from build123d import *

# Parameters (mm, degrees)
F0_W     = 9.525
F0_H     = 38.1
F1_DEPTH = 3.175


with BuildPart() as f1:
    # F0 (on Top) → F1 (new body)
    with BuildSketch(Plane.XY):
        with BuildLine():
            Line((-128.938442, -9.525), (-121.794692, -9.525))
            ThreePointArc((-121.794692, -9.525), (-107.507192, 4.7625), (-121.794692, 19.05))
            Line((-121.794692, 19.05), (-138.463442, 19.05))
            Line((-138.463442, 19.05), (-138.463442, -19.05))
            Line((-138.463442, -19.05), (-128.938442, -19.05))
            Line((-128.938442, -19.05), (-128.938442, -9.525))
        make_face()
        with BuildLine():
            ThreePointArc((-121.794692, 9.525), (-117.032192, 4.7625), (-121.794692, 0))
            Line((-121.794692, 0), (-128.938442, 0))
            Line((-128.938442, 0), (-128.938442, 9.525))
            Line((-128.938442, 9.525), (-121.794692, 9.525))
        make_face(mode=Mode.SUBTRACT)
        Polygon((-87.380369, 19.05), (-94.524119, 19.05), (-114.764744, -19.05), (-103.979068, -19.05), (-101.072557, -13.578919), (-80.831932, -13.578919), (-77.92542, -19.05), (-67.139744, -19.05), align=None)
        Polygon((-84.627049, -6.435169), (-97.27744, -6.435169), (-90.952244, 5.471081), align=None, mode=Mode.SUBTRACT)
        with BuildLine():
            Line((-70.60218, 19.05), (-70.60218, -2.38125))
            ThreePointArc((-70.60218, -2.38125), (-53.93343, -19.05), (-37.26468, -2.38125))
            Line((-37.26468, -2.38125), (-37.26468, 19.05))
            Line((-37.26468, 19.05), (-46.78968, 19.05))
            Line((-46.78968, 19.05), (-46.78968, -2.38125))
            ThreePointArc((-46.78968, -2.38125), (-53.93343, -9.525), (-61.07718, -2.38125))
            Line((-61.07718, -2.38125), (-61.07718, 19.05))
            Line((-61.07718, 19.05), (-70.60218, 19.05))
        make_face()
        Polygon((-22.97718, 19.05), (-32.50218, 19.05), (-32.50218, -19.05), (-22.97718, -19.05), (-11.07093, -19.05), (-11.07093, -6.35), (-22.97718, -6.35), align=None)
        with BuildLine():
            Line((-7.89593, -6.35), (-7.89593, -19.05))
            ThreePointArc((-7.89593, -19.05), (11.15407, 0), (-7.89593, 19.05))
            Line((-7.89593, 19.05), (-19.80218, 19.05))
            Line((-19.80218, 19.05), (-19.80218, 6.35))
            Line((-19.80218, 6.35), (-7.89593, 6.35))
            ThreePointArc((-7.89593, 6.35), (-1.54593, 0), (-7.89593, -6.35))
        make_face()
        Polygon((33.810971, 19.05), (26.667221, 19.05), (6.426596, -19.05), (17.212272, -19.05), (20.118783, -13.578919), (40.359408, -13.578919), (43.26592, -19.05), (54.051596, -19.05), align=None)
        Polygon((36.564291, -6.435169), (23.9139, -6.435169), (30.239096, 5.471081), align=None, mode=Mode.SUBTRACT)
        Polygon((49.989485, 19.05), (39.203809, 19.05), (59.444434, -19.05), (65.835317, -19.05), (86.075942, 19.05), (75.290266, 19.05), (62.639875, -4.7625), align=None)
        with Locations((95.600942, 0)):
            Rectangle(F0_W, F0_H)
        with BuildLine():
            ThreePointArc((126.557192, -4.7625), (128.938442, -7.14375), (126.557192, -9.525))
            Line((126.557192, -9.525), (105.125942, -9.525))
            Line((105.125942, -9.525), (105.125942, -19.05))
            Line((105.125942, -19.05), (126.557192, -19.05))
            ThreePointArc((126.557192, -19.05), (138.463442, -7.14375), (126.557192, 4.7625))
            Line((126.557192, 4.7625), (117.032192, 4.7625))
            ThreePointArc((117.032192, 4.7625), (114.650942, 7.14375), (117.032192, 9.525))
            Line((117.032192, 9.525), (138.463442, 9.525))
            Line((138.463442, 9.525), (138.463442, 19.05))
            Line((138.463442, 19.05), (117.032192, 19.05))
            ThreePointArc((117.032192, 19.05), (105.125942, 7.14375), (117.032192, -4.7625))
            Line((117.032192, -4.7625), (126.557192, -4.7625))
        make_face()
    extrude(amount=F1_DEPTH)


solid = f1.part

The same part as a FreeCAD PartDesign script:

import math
import FreeCAD as App
import Part
import Sketcher

V = App.Vector
Q = App.Units.Quantity

doc = App.newDocument("Part")
body = doc.addObject("PartDesign::Body", "Body")
body.AllowCompound = True

sketch1 = body.newObject("Sketcher::SketchObject", "Sketch")
sketch1.AttachmentSupport = (doc.getObject("XY_Plane"), [""])
sketch1.MapMode = "FlatFace"
sketch1.addGeometry([
    Part.LineSegment(V(-128.9, -9.5, 0), V(-121.8, -9.5, 0)),
    Part.ArcOfCircle(Part.Circle(V(-121.8, 4.8, 0), V(0, 0, 1), 14.3), math.radians(-90), math.radians(90)),
    Part.LineSegment(V(-121.8, 19.1, 0), V(-138.5, 19.1, 0)),
    Part.LineSegment(V(-138.5, 19.1, 0), V(-138.5, -19.1, 0)),
    Part.LineSegment(V(-138.5, -19.1, 0), V(-128.9, -19.1, 0)),
    Part.LineSegment(V(-128.9, -19.1, 0), V(-128.9, -9.5, 0)),
    Part.LineSegment(V(-128.9, 9.5, 0), V(-121.8, 9.5, 0)),
    Part.ArcOfCircle(Part.Circle(V(-121.8, 4.8, 0), V(0, 0, 1), 4.8), math.radians(-90), math.radians(90)),
    Part.LineSegment(V(-121.8, 0, 0), V(-128.9, 0, 0)),
    Part.LineSegment(V(-128.9, 0, 0), V(-128.9, 9.5, 0)),
    Part.LineSegment(V(-87.4, 19.1, 0), V(-94.5, 19.1, 0)),
    Part.LineSegment(V(-94.5, 19.1, 0), V(-114.8, -19.1, 0)),
    Part.LineSegment(V(-114.8, -19.1, 0), V(-104, -19.1, 0)),
    Part.LineSegment(V(-104, -19.1, 0), V(-101.1, -13.6, 0)),
    Part.LineSegment(V(-101.1, -13.6, 0), V(-80.8, -13.6, 0)),
    Part.LineSegment(V(-80.8, -13.6, 0), V(-77.9, -19.1, 0)),
    Part.LineSegment(V(-77.9, -19.1, 0), V(-67.1, -19.1, 0)),
    Part.LineSegment(V(-67.1, -19.1, 0), V(-87.4, 19.1, 0)),
    Part.LineSegment(V(-91, 5.5, 0), V(-84.6, -6.4, 0)),
    Part.LineSegment(V(-84.6, -6.4, 0), V(-97.3, -6.4, 0)),
    Part.LineSegment(V(-97.3, -6.4, 0), V(-91, 5.5, 0)),
    Part.LineSegment(V(-70.6, 19.1, 0), V(-70.6, -2.4, 0)),
    Part.ArcOfCircle(Part.Circle(V(-53.9, -2.4, 0), V(0, 0, 1), 16.7), math.radians(180), math.radians(360)),
    Part.LineSegment(V(-37.3, -2.4, 0), V(-37.3, 19.1, 0)),
    Part.LineSegment(V(-37.3, 19.1, 0), V(-46.8, 19.1, 0)),
    Part.LineSegment(V(-46.8, 19.1, 0), V(-46.8, -2.4, 0)),
    Part.ArcOfCircle(Part.Circle(V(-53.9, -2.4, 0), V(0, 0, 1), 7.1), math.radians(180), math.radians(360)),
    Part.LineSegment(V(-61.1, -2.4, 0), V(-61.1, 19.1, 0)),
    Part.LineSegment(V(-61.1, 19.1, 0), V(-70.6, 19.1, 0)),
    Part.LineSegment(V(-23, 19.1, 0), V(-32.5, 19.1, 0)),
    Part.LineSegment(V(-32.5, 19.1, 0), V(-32.5, -19.1, 0)),
    Part.LineSegment(V(-32.5, -19.1, 0), V(-11.1, -19.1, 0)),
    Part.LineSegment(V(-11.1, -19.1, 0), V(-11.1, -6.3, 0)),
    Part.LineSegment(V(-11.1, -6.3, 0), V(-23, -6.3, 0)),
    Part.LineSegment(V(-23, -6.3, 0), V(-23, 19.1, 0)),
    Part.LineSegment(V(-7.9, -6.3, 0), V(-7.9, -19.1, 0)),
    Part.ArcOfCircle(Part.Circle(V(-7.9, 0, 0), V(0, 0, 1), 19.1), math.radians(-90), math.radians(90)),
    Part.LineSegment(V(-7.9, 19.1, 0), V(-19.8, 19.1, 0)),
    Part.LineSegment(V(-19.8, 19.1, 0), V(-19.8, 6.3, 0)),
    Part.LineSegment(V(-19.8, 6.3, 0), V(-7.9, 6.3, 0)),
    Part.ArcOfCircle(Part.Circle(V(-7.9, 0, 0), V(0, 0, 1), 6.3), math.radians(-90), math.radians(90)),
    Part.LineSegment(V(33.8, 19.1, 0), V(26.7, 19.1, 0)),
    Part.LineSegment(V(26.7, 19.1, 0), V(6.4, -19.1, 0)),
    Part.LineSegment(V(6.4, -19.1, 0), V(17.2, -19.1, 0)),
    Part.LineSegment(V(17.2, -19.1, 0), V(20.1, -13.6, 0)),
    Part.LineSegment(V(20.1, -13.6, 0), V(40.4, -13.6, 0)),
    Part.LineSegment(V(40.4, -13.6, 0), V(43.3, -19.1, 0)),
    Part.LineSegment(V(43.3, -19.1, 0), V(54.1, -19.1, 0)),
    Part.LineSegment(V(54.1, -19.1, 0), V(33.8, 19.1, 0)),
    Part.LineSegment(V(30.2, 5.5, 0), V(36.6, -6.4, 0)),
    Part.LineSegment(V(36.6, -6.4, 0), V(23.9, -6.4, 0)),
    Part.LineSegment(V(23.9, -6.4, 0), V(30.2, 5.5, 0)),
    Part.LineSegment(V(50, 19.1, 0), V(39.2, 19.1, 0)),
    Part.LineSegment(V(39.2, 19.1, 0), V(59.4, -19.1, 0)),
    Part.LineSegment(V(59.4, -19.1, 0), V(65.8, -19.1, 0)),
    Part.LineSegment(V(65.8, -19.1, 0), V(86.1, 19.1, 0)),
    Part.LineSegment(V(86.1, 19.1, 0), V(75.3, 19.1, 0)),
    Part.LineSegment(V(75.3, 19.1, 0), V(62.6, -4.8, 0)),
    Part.LineSegment(V(62.6, -4.8, 0), V(50, 19.1, 0)),
    Part.LineSegment(V(90.8, 19.1, 0), V(90.8, -19.1, 0)),
    Part.LineSegment(V(90.8, -19.1, 0), V(100.4, -19.1, 0)),
    Part.LineSegment(V(100.4, -19.1, 0), V(100.4, 19.1, 0)),
    Part.LineSegment(V(100.4, 19.1, 0), V(90.8, 19.1, 0)),
    Part.ArcOfCircle(Part.Circle(V(126.6, -7.1, 0), V(0, 0, 1), 2.4), math.radians(-90), math.radians(90)),
    Part.LineSegment(V(126.6, -9.5, 0), V(105.1, -9.5, 0)),
    Part.LineSegment(V(105.1, -9.5, 0), V(105.1, -19.1, 0)),
    Part.LineSegment(V(105.1, -19.1, 0), V(126.6, -19.1, 0)),
    Part.ArcOfCircle(Part.Circle(V(126.6, -7.1, 0), V(0, 0, 1), 11.9), math.radians(-90), math.radians(90)),
    Part.LineSegment(V(126.6, 4.8, 0), V(117, 4.8, 0)),
    Part.ArcOfCircle(Part.Circle(V(117, 7.1, 0), V(0, 0, 1), 2.4), math.radians(90), math.radians(270)),
    Part.LineSegment(V(117, 9.5, 0), V(138.5, 9.5, 0)),
    Part.LineSegment(V(138.5, 9.5, 0), V(138.5, 19.1, 0)),
    Part.LineSegment(V(138.5, 19.1, 0), V(117, 19.1, 0)),
    Part.ArcOfCircle(Part.Circle(V(117, 7.1, 0), V(0, 0, 1), 11.9), math.radians(90), math.radians(270)),
    Part.LineSegment(V(117, -4.8, 0), V(126.6, -4.8, 0)),
], False)
sketch1.addConstraint([
    Sketcher.Constraint("Tangent", 0, 2, 1, 1),
    Sketcher.Constraint("Tangent", 1, 2, 2, 1),
    Sketcher.Constraint("Coincident", 2, 2, 3, 1),
    Sketcher.Constraint("Coincident", 3, 2, 4, 1),
    Sketcher.Constraint("Coincident", 4, 2, 5, 1),
    Sketcher.Constraint("Coincident", 5, 2, 0, 1),
    Sketcher.Constraint("Tangent", 6, 2, 7, 2),
    Sketcher.Constraint("Tangent", 7, 1, 8, 1),
    Sketcher.Constraint("Coincident", 8, 2, 9, 1),
    Sketcher.Constraint("Coincident", 9, 2, 6, 1),
    Sketcher.Constraint("Coincident", 10, 2, 11, 1),
    Sketcher.Constraint("Coincident", 11, 2, 12, 1),
    Sketcher.Constraint("Coincident", 12, 2, 13, 1),
    Sketcher.Constraint("Coincident", 13, 2, 14, 1),
    Sketcher.Constraint("Coincident", 14, 2, 15, 1),
    Sketcher.Constraint("Coincident", 15, 2, 16, 1),
    Sketcher.Constraint("Coincident", 16, 2, 17, 1),
    Sketcher.Constraint("Coincident", 17, 2, 10, 1),
    Sketcher.Constraint("Coincident", 18, 2, 19, 1),
    Sketcher.Constraint("Coincident", 19, 2, 20, 1),
    Sketcher.Constraint("Coincident", 20, 2, 18, 1),
    Sketcher.Constraint("Tangent", 21, 2, 22, 1),
    Sketcher.Constraint("Tangent", 22, 2, 23, 1),
    Sketcher.Constraint("Coincident", 23, 2, 24, 1),
    Sketcher.Constraint("Coincident", 24, 2, 25, 1),
    Sketcher.Constraint("Tangent", 25, 2, 26, 2),
    Sketcher.Constraint("Tangent", 26, 1, 27, 1),
    Sketcher.Constraint("Coincident", 27, 2, 28, 1),
    Sketcher.Constraint("Coincident", 28, 2, 21, 1),
    Sketcher.Constraint("Coincident", 29, 2, 30, 1),
    Sketcher.Constraint("Coincident", 30, 2, 31, 1),
    Sketcher.Constraint("Coincident", 31, 2, 32, 1),
    Sketcher.Constraint("Coincident", 32, 2, 33, 1),
    Sketcher.Constraint("Coincident", 33, 2, 34, 1),
    Sketcher.Constraint("Coincident", 34, 2, 29, 1),
    Sketcher.Constraint("Coincident", 35, 2, 36, 1),
    Sketcher.Constraint("Tangent", 36, 2, 37, 1),
    Sketcher.Constraint("Coincident", 37, 2, 38, 1),
    Sketcher.Constraint("Coincident", 38, 2, 39, 1),
    Sketcher.Constraint("Tangent", 39, 2, 40, 2),
    Sketcher.Constraint("Coincident", 40, 1, 35, 1),
    Sketcher.Constraint("Coincident", 41, 2, 42, 1),
    Sketcher.Constraint("Coincident", 42, 2, 43, 1),
    Sketcher.Constraint("Coincident", 43, 2, 44, 1),
    Sketcher.Constraint("Coincident", 44, 2, 45, 1),
    Sketcher.Constraint("Coincident", 45, 2, 46, 1),
    Sketcher.Constraint("Coincident", 46, 2, 47, 1),
    Sketcher.Constraint("Coincident", 47, 2, 48, 1),
    Sketcher.Constraint("Coincident", 48, 2, 41, 1),
    Sketcher.Constraint("Coincident", 49, 2, 50, 1),
    Sketcher.Constraint("Coincident", 50, 2, 51, 1),
    Sketcher.Constraint("Coincident", 51, 2, 49, 1),
    Sketcher.Constraint("Coincident", 52, 2, 53, 1),
    Sketcher.Constraint("Coincident", 53, 2, 54, 1),
    Sketcher.Constraint("Coincident", 54, 2, 55, 1),
    Sketcher.Constraint("Coincident", 55, 2, 56, 1),
    Sketcher.Constraint("Coincident", 56, 2, 57, 1),
    Sketcher.Constraint("Coincident", 57, 2, 58, 1),
    Sketcher.Constraint("Coincident", 58, 2, 52, 1),
    Sketcher.Constraint("Coincident", 59, 2, 60, 1),
    Sketcher.Constraint("Coincident", 60, 2, 61, 1),
    Sketcher.Constraint("Coincident", 61, 2, 62, 1),
    Sketcher.Constraint("Coincident", 62, 2, 59, 1),
    Sketcher.Constraint("Tangent", 63, 1, 64, 1),
    Sketcher.Constraint("Coincident", 64, 2, 65, 1),
    Sketcher.Constraint("Coincident", 65, 2, 66, 1),
    Sketcher.Constraint("Tangent", 66, 2, 67, 1),
    Sketcher.Constraint("Tangent", 67, 2, 68, 1),
    Sketcher.Constraint("Tangent", 68, 2, 69, 2),
    Sketcher.Constraint("Tangent", 69, 1, 70, 1),
    Sketcher.Constraint("Coincident", 70, 2, 71, 1),
    Sketcher.Constraint("Coincident", 71, 2, 72, 1),
    Sketcher.Constraint("Tangent", 72, 2, 73, 1),
    Sketcher.Constraint("Tangent", 73, 2, 74, 1),
    Sketcher.Constraint("Tangent", 74, 2, 63, 2),
    Sketcher.Constraint("Horizontal", 0),
    Sketcher.Constraint("Horizontal", 2),
    Sketcher.Constraint("Vertical", 3),
    Sketcher.Constraint("Horizontal", 4),
    Sketcher.Constraint("Vertical", 5),
    Sketcher.Constraint("Horizontal", 6),
    Sketcher.Constraint("Horizontal", 8),
    Sketcher.Constraint("Vertical", 9),
    Sketcher.Constraint("Horizontal", 10),
    Sketcher.Constraint("Horizontal", 12),
    Sketcher.Constraint("Horizontal", 14),
    Sketcher.Constraint("Horizontal", 16),
    Sketcher.Constraint("Horizontal", 19),
    Sketcher.Constraint("Vertical", 21),
    Sketcher.Constraint("Vertical", 23),
    Sketcher.Constraint("Horizontal", 24),
    Sketcher.Constraint("Vertical", 25),
    Sketcher.Constraint("Vertical", 27),
    Sketcher.Constraint("Horizontal", 28),
    Sketcher.Constraint("Horizontal", 29),
    Sketcher.Constraint("Vertical", 30),
    Sketcher.Constraint("Horizontal", 31),
    Sketcher.Constraint("Vertical", 32),
    Sketcher.Constraint("Horizontal", 33),
    Sketcher.Constraint("Vertical", 34),
    Sketcher.Constraint("Vertical", 35),
    Sketcher.Constraint("Horizontal", 37),
    Sketcher.Constraint("Vertical", 38),
    Sketcher.Constraint("Horizontal", 39),
    Sketcher.Constraint("Horizontal", 41),
    Sketcher.Constraint("Horizontal", 43),
    Sketcher.Constraint("Horizontal", 45),
    Sketcher.Constraint("Horizontal", 47),
    Sketcher.Constraint("Horizontal", 50),
    Sketcher.Constraint("Horizontal", 52),
    Sketcher.Constraint("Horizontal", 54),
    Sketcher.Constraint("Horizontal", 56),
    Sketcher.Constraint("Vertical", 59),
    Sketcher.Constraint("Horizontal", 60),
    Sketcher.Constraint("Vertical", 61),
    Sketcher.Constraint("Horizontal", 62),
    Sketcher.Constraint("Horizontal", 64),
    Sketcher.Constraint("Vertical", 65),
    Sketcher.Constraint("Horizontal", 66),
    Sketcher.Constraint("Horizontal", 68),
    Sketcher.Constraint("Horizontal", 70),
    Sketcher.Constraint("Vertical", 71),
    Sketcher.Constraint("Horizontal", 72),
    Sketcher.Constraint("Horizontal", 74),
    Sketcher.Constraint("Coincident", 7, 3, 1, 3),
    Sketcher.Constraint("Coincident", 26, 3, 22, 3),
    Sketcher.Constraint("Coincident", 40, 3, 36, 3),
    Sketcher.Constraint("Coincident", 67, 3, 63, 3),
    Sketcher.Constraint("Coincident", 73, 3, 69, 3),
    Sketcher.Constraint("Equal", 63, 69),
    Sketcher.Constraint("Symmetric", 3, 2, 71, 2, -1, 1),
    Sketcher.Constraint("Symmetric", 5, 2, 9, 2, -1),
    Sketcher.Constraint("Symmetric", 35, 2, 36, 2, -1),
    Sketcher.Constraint("PointOnObject", 7, 1, -1),
    Sketcher.Constraint("Parallel", 11, 13),
    Sketcher.Constraint("Parallel", 15, 17),
    Sketcher.Constraint("Parallel", 17, 18),
    Sketcher.Constraint("Parallel", 13, 20),
    Sketcher.Constraint("Parallel", 20, 42),
    Sketcher.Constraint("Parallel", 42, 44),
    Sketcher.Constraint("Parallel", 18, 46),
    Sketcher.Constraint("Parallel", 46, 48),
    Sketcher.Constraint("Parallel", 48, 49),
    Sketcher.Constraint("Parallel", 44, 51),
    Sketcher.Constraint("Parallel", 49, 53),
    Sketcher.Constraint("Parallel", 51, 55),
    Sketcher.Constraint("Parallel", 55, 57),
    Sketcher.Constraint("Parallel", 53, 58),
    Sketcher.Constraint("Horizontal", 2, 2, 10, 2),
    Sketcher.Constraint("Horizontal", 4, 2, 11, 2),
    Sketcher.Constraint("Horizontal", 12, 2, 15, 2),
    Sketcher.Constraint("Horizontal", 17, 2, 23, 2),
    Sketcher.Constraint("Horizontal", 24, 2, 27, 2),
    Sketcher.Constraint("Horizontal", 28, 2, 29, 2),
    Sketcher.Constraint("Horizontal", 16, 2, 30, 2),
    Sketcher.Constraint("Horizontal", 31, 2, 35, 2),
    Sketcher.Constraint("Horizontal", 34, 2, 36, 2),
    Sketcher.Constraint("Horizontal", 33, 2, 40, 1),
    Sketcher.Constraint("Horizontal", 37, 2, 41, 2),
    Sketcher.Constraint("Horizontal", 35, 2, 42, 2),
    Sketcher.Constraint("Horizontal", 14, 2, 44, 2),
    Sketcher.Constraint("Horizontal", 43, 2, 46, 2),
    Sketcher.Constraint("Horizontal", 19, 2, 49, 2),
    Sketcher.Constraint("Horizontal", 20, 2, 51, 2),
    Sketcher.Constraint("Horizontal", 48, 2, 52, 2),
    Sketcher.Constraint("Horizontal", 47, 2, 53, 2),
    Sketcher.Constraint("Horizontal", 52, 2, 55, 2),
    Sketcher.Constraint("Horizontal", 54, 2, 59, 2),
    Sketcher.Constraint("Horizontal", 58, 2, 61, 2),
    Sketcher.Constraint("Horizontal", 5, 2, 63, 1),
    Sketcher.Constraint("Horizontal", 60, 2, 65, 2),
    Sketcher.Constraint("Horizontal", 57, 2, 73, 2),
    Sketcher.Constraint("Equal", 8, 10),
    Sketcher.Constraint("Equal", 12, 16),
    Sketcher.Constraint("Equal", 4, 24),
    Sketcher.Constraint("Equal", 28, 29),
    Sketcher.Constraint("Equal", 33, 37),
    Sketcher.Constraint("Equal", 10, 41),
    Sketcher.Constraint("Equal", 16, 43),
    Sketcher.Constraint("Equal", 14, 45),
    Sketcher.Constraint("Equal", 47, 52),
    Sketcher.Constraint("Equal", 52, 56),
    Sketcher.Constraint("Equal", 29, 60),
    Sketcher.Constraint("Equal", 31, 64),
    Sketcher.Constraint("Equal", 62, 68),
    Sketcher.Constraint("Equal", 66, 70),
    Sketcher.Constraint("Equal", 74, 5),
    Sketcher.Constraint("Equal", 72, 21),
    Sketcher.Constraint("Equal", 13, 15),
    Sketcher.Constraint("DistanceY", 34, 1, 34, 2, Q("1 in")),
    Sketcher.Constraint("Radius", 36, Q("0.75 in")),
    Sketcher.Constraint("Radius", 22, Q("0.65625 in")),
    Sketcher.Constraint("DistanceX", 0, 1, 0, 2, Q("0.28125 in")),
    Sketcher.Constraint("DistanceX", 14, 1, 14, 2, Q("0.796875 in")),
    Sketcher.Constraint("DistanceX", 31, 1, 31, 2, Q("0.84375 in")),
    Sketcher.Constraint("DistanceX", 19, 2, 19, 1, Q("12.650391 mm")),
    Sketcher.Constraint("DistanceX", -1, 1, 50, 2, Q("23.9139 mm")),
    Sketcher.Constraint("Distance", 57, Q("26.96419 mm")),
    Sketcher.Constraint("DistanceX", 12, 1, 12, 2, Q("10.785676 mm")),
    Sketcher.Constraint("DistanceX", 1, 3, -1, 1, Q("121.794692 mm")),
    Sketcher.Constraint("DistanceX", 22, 3, -1, 1, Q("53.93343 mm")),
    Sketcher.Constraint("DistanceX", 36, 3, -1, 1, Q("7.89593 mm")),
    Sketcher.Constraint("DistanceX", 10, 2, -1, 1, Q("94.524119 mm")),
    Sketcher.Constraint("DistanceX", 18, 2, -1, 1, Q("84.627049 mm")),
    Sketcher.Constraint("DistanceY", 18, 2, -1, 1, Q("6.435169 mm")),
    Sketcher.Constraint("DistanceX", 29, 2, -1, 1, Q("32.50218 mm")),
    Sketcher.Constraint("DistanceX", -1, 1, 41, 2, Q("26.667221 mm")),
    Sketcher.Constraint("DistanceX", -1, 1, 52, 2, Q("39.203809 mm")),
    Sketcher.Constraint("DistanceX", -1, 1, 59, 2, Q("90.838442 mm")),
])
pad1 = body.newObject("PartDesign::Pad", "Pad")
pad1.Profile = sketch1
pad1.Length = Q("0.125 in")

doc.recompute()
